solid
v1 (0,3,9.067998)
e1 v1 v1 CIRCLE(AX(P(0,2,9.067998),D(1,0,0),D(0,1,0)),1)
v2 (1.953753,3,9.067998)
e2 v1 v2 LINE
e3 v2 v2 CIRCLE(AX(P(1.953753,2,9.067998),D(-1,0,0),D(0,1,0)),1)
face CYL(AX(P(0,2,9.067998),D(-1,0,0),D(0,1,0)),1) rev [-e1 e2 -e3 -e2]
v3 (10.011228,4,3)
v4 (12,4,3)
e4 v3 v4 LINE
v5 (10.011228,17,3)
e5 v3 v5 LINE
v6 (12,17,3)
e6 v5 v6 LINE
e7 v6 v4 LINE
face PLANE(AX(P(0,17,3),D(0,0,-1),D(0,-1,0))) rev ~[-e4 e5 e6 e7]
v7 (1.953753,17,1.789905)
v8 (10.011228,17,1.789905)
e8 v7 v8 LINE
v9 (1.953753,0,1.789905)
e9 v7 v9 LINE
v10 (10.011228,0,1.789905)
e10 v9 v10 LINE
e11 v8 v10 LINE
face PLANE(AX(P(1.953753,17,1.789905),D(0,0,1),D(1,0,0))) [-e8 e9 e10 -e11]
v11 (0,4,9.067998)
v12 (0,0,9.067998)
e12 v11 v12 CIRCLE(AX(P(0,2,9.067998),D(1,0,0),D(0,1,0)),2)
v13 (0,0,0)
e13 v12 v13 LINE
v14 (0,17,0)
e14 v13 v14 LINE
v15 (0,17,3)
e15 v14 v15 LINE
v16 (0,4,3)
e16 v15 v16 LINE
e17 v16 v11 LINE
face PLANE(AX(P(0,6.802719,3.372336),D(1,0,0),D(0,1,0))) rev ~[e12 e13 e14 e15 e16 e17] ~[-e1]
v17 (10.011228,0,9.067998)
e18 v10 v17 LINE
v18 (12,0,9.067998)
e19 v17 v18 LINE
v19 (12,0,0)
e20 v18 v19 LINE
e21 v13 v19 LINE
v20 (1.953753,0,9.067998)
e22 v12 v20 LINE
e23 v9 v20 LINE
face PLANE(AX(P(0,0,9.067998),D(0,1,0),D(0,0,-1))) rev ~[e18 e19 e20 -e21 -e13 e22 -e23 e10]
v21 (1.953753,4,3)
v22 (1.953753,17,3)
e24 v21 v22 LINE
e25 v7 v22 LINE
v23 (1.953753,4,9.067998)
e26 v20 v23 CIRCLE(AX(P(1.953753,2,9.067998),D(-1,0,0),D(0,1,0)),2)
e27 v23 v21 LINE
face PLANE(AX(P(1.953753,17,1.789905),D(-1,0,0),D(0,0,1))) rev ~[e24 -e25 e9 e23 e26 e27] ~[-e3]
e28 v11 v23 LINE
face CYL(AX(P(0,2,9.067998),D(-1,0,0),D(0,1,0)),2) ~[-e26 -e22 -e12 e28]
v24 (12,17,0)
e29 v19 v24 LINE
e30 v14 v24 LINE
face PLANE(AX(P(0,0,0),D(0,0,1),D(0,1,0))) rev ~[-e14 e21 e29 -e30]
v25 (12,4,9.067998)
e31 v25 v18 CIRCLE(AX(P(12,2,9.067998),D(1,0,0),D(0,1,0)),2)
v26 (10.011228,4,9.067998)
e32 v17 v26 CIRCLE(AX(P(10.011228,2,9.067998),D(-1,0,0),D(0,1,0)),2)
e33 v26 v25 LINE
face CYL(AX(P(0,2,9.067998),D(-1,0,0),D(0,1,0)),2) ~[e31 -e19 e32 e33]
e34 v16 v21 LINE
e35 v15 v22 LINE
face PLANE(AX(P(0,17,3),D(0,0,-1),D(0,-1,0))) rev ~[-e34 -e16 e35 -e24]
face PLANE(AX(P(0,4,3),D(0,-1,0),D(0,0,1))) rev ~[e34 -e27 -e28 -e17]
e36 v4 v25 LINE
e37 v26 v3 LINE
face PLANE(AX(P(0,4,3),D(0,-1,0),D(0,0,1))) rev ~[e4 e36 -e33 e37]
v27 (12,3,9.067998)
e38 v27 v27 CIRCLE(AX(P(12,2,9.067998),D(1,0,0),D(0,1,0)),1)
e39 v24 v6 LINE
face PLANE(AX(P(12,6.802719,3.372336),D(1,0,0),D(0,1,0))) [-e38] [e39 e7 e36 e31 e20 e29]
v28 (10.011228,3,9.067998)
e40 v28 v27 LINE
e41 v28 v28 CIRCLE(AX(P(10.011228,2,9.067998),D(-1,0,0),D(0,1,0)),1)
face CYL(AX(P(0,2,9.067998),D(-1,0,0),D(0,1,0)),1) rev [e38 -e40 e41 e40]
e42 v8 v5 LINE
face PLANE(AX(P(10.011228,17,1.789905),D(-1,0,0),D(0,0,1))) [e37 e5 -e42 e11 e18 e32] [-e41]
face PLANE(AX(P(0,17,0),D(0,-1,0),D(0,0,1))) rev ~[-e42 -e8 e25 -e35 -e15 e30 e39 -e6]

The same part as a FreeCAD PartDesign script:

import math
import FreeCAD as App
import Part
import Sketcher
from FreeCAD import Vector
Q = App.Units.Quantity


def add_polygon(sketch, points):
    """Adds a closed chain of lines whose ends are joined by coincident constraints."""
    first, n = sketch.GeometryCount, len(points)
    for a, b in zip(points, points[1:] + points[:1]):
        sketch.addGeometry(Part.LineSegment(App.Vector(*a, 0), App.Vector(*b, 0)), False)
    for i in range(n):
        sketch.addConstraint(Sketcher.Constraint("Coincident", first + i, 2, first + (i + 1) % n, 1))

doc = App.newDocument("Part")
body = doc.addObject("PartDesign::Body", "Body")

# Sketch on YZ plane
sketch1 = doc.addObject("Sketcher::SketchObject", "Sketch")
body.addObject(sketch1)
sketch1.AttachmentSupport = (doc.YZ_Plane, [""])
sketch1.MapMode = "FlatFace"
sketch1.addGeometry([
    Part.LineSegment(Vector(0, 0, 0), Vector(17, 0, 0)),  # 0
    Part.LineSegment(Vector(17, 0, 0), Vector(17, 3, 0)),  # 1
    Part.LineSegment(Vector(17, 3, 0), Vector(4, 3, 0)),  # 2
    Part.LineSegment(Vector(4, 3, 0), Vector(4, 9.1, 0)),  # 3
    Part.ArcOfCircle(Part.Circle(Vector(2, 9.1, 0), Vector(0, 0, 1), 2), math.radians(0), math.radians(180)),  # 4
    Part.LineSegment(Vector(0, 9.1, 0), Vector(0, 0, 0)),  # 5
    Part.Circle(Vector(2, 9.1, 0), Vector(0, 0, 1), 1),  # 6
], False)
sketch1.addConstraint([
    Sketcher.Constraint("Coincident", 0, 2, 1, 1),
    Sketcher.Constraint("Coincident", 1, 2, 2, 1),
    Sketcher.Constraint("Coincident", 2, 2, 3, 1),
    Sketcher.Constraint("Tangent", 3, 2, 4, 1),
    Sketcher.Constraint("Tangent", 4, 2, 5, 1),
    Sketcher.Constraint("Coincident", 5, 2, 0, 1),
    Sketcher.Constraint("Horizontal", 0),
    Sketcher.Constraint("Vertical", 1),
    Sketcher.Constraint("Horizontal", 2),
    Sketcher.Constraint("Vertical", 3),
    Sketcher.Constraint("Vertical", 5),
    Sketcher.Constraint("Coincident", 5, 2, -1, 1),
    Sketcher.Constraint("Coincident", 6, 3, 4, 3),
    Sketcher.Constraint("Diameter", 6, Q("2 mm")),
    Sketcher.Constraint("Radius", 4, Q("2 mm")),
    Sketcher.Constraint("DistanceX", 0, 1, 0, 2, Q("17 mm")),
    Sketcher.Constraint("DistanceY", 1, 1, 1, 2, Q("3 mm")),
    Sketcher.Constraint("DistanceY", 3, 1, 3, 2, Q("6.067998 mm")),
])
pad1 = doc.addObject("PartDesign::Pad", "Pad")
body.addObject(pad1)
pad1.Profile = sketch1
pad1.Length = 12

# Sketch on XZ plane
sketch2 = doc.addObject("Sketcher::SketchObject", "Sketch001")
body.addObject(sketch2)
sketch2.AttachmentSupport = (doc.XZ_Plane, [""])
sketch2.MapMode = "FlatFace"
sketch2.AttachmentOffset = App.Placement(Vector(0, 0, -17), App.Rotation())
add_polygon(sketch2, [(10, 2), (2, 2), (2, 13), (10, 13)])  # lines 0-3
sketch2.addConstraint([
    Sketcher.Constraint("Horizontal", 0),
    Sketcher.Constraint("Vertical", 1),
    Sketcher.Constraint("Horizontal", 2),
    Sketcher.Constraint("Vertical", 3),
    Sketcher.Constraint("DistanceY", 1, 1, 1, 2, Q("11.430722 mm")),
    Sketcher.Constraint("DistanceX", 0, 2, 0, 1, Q("8.057475 mm")),
    Sketcher.Constraint("DistanceX", -1, 1, 0, 2, Q("1.953753 mm")),
    Sketcher.Constraint("DistanceY", -1, 1, 0, 2, Q("1.789905 mm")),
])
pocket1 = doc.addObject("PartDesign::Pocket", "Pocket")
body.addObject(pocket1)
pocket1.Profile = sketch2
pocket1.Length = 17
pocket1.Reversed = True

doc.recompute()
